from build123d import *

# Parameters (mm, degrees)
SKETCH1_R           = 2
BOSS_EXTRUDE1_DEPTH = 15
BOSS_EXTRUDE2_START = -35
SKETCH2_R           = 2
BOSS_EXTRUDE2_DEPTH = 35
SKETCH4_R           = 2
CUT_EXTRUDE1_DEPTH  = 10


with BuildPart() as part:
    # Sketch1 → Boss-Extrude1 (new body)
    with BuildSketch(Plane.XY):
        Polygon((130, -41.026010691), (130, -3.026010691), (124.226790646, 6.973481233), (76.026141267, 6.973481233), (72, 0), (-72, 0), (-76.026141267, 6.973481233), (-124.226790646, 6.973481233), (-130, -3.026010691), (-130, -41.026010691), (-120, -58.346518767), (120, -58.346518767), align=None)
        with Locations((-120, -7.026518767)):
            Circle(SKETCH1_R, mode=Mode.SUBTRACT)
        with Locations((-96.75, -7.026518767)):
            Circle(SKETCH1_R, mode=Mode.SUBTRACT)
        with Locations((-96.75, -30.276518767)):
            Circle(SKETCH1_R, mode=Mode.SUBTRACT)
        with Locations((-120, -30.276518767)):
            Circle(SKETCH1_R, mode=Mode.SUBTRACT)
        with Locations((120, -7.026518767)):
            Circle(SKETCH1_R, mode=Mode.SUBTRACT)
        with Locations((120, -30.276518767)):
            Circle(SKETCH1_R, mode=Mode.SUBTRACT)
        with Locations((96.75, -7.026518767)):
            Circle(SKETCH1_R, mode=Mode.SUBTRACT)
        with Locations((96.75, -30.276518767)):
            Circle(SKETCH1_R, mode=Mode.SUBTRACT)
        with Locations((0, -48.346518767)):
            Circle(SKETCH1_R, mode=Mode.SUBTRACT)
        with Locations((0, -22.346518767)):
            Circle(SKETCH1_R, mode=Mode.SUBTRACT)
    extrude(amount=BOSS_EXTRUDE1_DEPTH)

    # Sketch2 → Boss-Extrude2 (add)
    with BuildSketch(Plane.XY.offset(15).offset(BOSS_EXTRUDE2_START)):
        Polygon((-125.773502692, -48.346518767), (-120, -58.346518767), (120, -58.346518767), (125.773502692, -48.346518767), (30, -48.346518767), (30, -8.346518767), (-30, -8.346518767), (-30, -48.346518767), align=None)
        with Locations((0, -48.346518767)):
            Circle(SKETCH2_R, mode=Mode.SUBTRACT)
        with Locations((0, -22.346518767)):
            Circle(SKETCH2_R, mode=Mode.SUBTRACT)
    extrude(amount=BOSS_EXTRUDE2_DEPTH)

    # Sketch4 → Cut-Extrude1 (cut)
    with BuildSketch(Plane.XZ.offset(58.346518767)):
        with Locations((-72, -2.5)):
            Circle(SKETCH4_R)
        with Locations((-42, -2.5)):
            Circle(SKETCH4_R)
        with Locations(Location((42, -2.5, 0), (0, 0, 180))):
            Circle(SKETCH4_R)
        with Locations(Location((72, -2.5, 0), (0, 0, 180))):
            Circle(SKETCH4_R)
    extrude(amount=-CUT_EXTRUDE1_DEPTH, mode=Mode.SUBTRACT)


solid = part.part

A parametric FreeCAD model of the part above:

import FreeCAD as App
import Part
import Sketcher

V = App.Vector
Q = App.Units.Quantity

doc = App.newDocument("Part")
params = doc.addObject("Spreadsheet::Sheet", "Params")
for row, (alias, value) in enumerate([
    ("sketch1_diameter", "4 mm"),
    ("sketch1_width", "144 mm"),
    ("sketch1_width2", "240 mm"),
    ("sketch1_height", "38 mm"),
    ("sketch1_length", "20 mm"),
    ("pad1_length", "15 mm"),
    ("sketch2_diameter", "4 mm"),
    ("sketch2_width", "240 mm"),
    ("sketch2_width2", "60 mm"),
    ("sketch2_height", "40 mm"),
    ("pad2_length", "35 mm"),
    ("sketch3_diameter", "4 mm"),
    ("pocket1_length", "10 mm"),
], start=1):
    params.set(f"A{row}", alias)
    params.set(f"B{row}", "=" + value)
    params.setAlias(f"B{row}", alias)

body = doc.addObject("PartDesign::Body", "Body")

# Sketch on XY plane
sketch1 = body.newObject("Sketcher::SketchObject", "Sketch")
sketch1.AttachmentSupport = (doc.getObject("XY_Plane"), [""])
sketch1.MapMode = "FlatFace"
sketch1.addGeometry(Part.LineSegment(V(130, -41, 0), V(130, -3, 0)), False)
sketch1.addGeometry(Part.LineSegment(V(130, -3, 0), V(124.2, 7, 0)), False)
sketch1.addGeometry(Part.LineSegment(V(124.2, 7, 0), V(76, 7, 0)), False)
sketch1.addGeometry(Part.LineSegment(V(76, 7, 0), V(72, 0, 0)), False)
sketch1.addGeometry(Part.LineSegment(V(72, 0, 0), V(-72, 0, 0)), False)
sketch1.addGeometry(Part.LineSegment(V(-72, 0, 0), V(-76, 7, 0)), False)
sketch1.addGeometry(Part.LineSegment(V(-76, 7, 0), V(-124.2, 7, 0)), False)
sketch1.addGeometry(Part.LineSegment(V(-124.2, 7, 0), V(-130, -3, 0)), False)
sketch1.addGeometry(Part.LineSegment(V(-130, -3, 0), V(-130, -41, 0)), False)
sketch1.addGeometry(Part.LineSegment(V(-130, -41, 0), V(-120, -58.3, 0)), False)
sketch1.addGeometry(Part.LineSegment(V(-120, -58.3, 0), V(120, -58.3, 0)), False)
sketch1.addGeometry(Part.LineSegment(V(120, -58.3, 0), V(130, -41, 0)), False)
sketch1.addGeometry(Part.Circle(V(-120, -30.3, 0), V(0, 0, 1), 2), False)
sketch1.addGeometry(Part.Circle(V(-96.8, -30.3, 0), V(0, 0, 1), 2), False)
sketch1.addGeometry(Part.Circle(V(0, -48.3, 0), V(0, 0, 1), 2), False)
sketch1.addGeometry(Part.Circle(V(96.8, -30.3, 0), V(0, 0, 1), 2), False)
sketch1.addGeometry(Part.Circle(V(120, -30.3, 0), V(0, 0, 1), 2), False)
sketch1.addGeometry(Part.Circle(V(-120, -7, 0), V(0, 0, 1), 2), False)
sketch1.addGeometry(Part.Circle(V(-96.8, -7, 0), V(0, 0, 1), 2), False)
sketch1.addGeometry(Part.Circle(V(0, -22.3, 0), V(0, 0, 1), 2), False)
sketch1.addGeometry(Part.Circle(V(96.8, -7, 0), V(0, 0, 1), 2), False)
sketch1.addGeometry(Part.Circle(V(120, -7, 0), V(0, 0, 1), 2), False)
sketch1.addConstraint(Sketcher.Constraint("Coincident", 0, 2, 1, 1))
sketch1.addConstraint(Sketcher.Constraint("Coincident", 1, 2, 2, 1))
sketch1.addConstraint(Sketcher.Constraint("Coincident", 2, 2, 3, 1))
sketch1.addConstraint(Sketcher.Constraint("Coincident", 3, 2, 4, 1))
sketch1.addConstraint(Sketcher.Constraint("Coincident", 4, 2, 5, 1))
sketch1.addConstraint(Sketcher.Constraint("Coincident", 5, 2, 6, 1))
sketch1.addConstraint(Sketcher.Constraint("Coincident", 6, 2, 7, 1))
sketch1.addConstraint(Sketcher.Constraint("Coincident", 7, 2, 8, 1))
sketch1.addConstraint(Sketcher.Constraint("Coincident", 8, 2, 9, 1))
sketch1.addConstraint(Sketcher.Constraint("Coincident", 9, 2, 10, 1))
sketch1.addConstraint(Sketcher.Constraint("Coincident", 10, 2, 11, 1))
sketch1.addConstraint(Sketcher.Constraint("Coincident", 11, 2, 0, 1))
sketch1.addConstraint(Sketcher.Constraint("Vertical", 0))
sketch1.addConstraint(Sketcher.Constraint("Horizontal", 2))
sketch1.addConstraint(Sketcher.Constraint("Horizontal", 4))
sketch1.addConstraint(Sketcher.Constraint("Horizontal", 6))
sketch1.addConstraint(Sketcher.Constraint("Vertical", 8))
sketch1.addConstraint(Sketcher.Constraint("Horizontal", 10))
sketch1.addConstraint(Sketcher.Constraint("Equal", 12, 13))
sketch1.addConstraint(Sketcher.Constraint("Equal", 13, 14))
sketch1.addConstraint(Sketcher.Constraint("Equal", 14, 15))
sketch1.addConstraint(Sketcher.Constraint("Equal", 15, 16))
sketch1.addConstraint(Sketcher.Constraint("Equal", 16, 17))
sketch1.addConstraint(Sketcher.Constraint("Equal", 17, 18))
sketch1.addConstraint(Sketcher.Constraint("Equal", 18, 19))
sketch1.addConstraint(Sketcher.Constraint("Equal", 19, 20))
sketch1.addConstraint(Sketcher.Constraint("Equal", 20, 21))
sketch1.addConstraint(Sketcher.Constraint("Symmetric", 3, 2, 4, 2, -1, 1))
sketch1.addConstraint(Sketcher.Constraint("Symmetric", 13, 3, 15, 3, -2))
sketch1.addConstraint(Sketcher.Constraint("Symmetric", 12, 3, 16, 3, -2))
sketch1.addConstraint(Sketcher.Constraint("Symmetric", 18, 3, 20, 3, -2))
sketch1.addConstraint(Sketcher.Constraint("Symmetric", 17, 3, 21, 3, -2))
sketch1.addConstraint(Sketcher.Constraint("Symmetric", 2, 2, 5, 2, -2))
sketch1.addConstraint(Sketcher.Constraint("Symmetric", 0, 2, 7, 2, -2))
sketch1.addConstraint(Sketcher.Constraint("PointOnObject", 14, 3, -2))
sketch1.addConstraint(Sketcher.Constraint("PointOnObject", 19, 3, -2))
sketch1.addConstraint(Sketcher.Constraint("Parallel", 1, 5))
sketch1.addConstraint(Sketcher.Constraint("Parallel", 3, 7))
sketch1.addConstraint(Sketcher.Constraint("Parallel", 5, 9))
sketch1.addConstraint(Sketcher.Constraint("Parallel", 7, 11))
sketch1.addConstraint(Sketcher.Constraint("Horizontal", 12, 3, 13, 3))
sketch1.addConstraint(Sketcher.Constraint("Horizontal", 17, 3, 18, 3))
sketch1.addConstraint(Sketcher.Constraint("Horizontal", 8, 2, 11, 2))
sketch1.addConstraint(Sketcher.Constraint("Vertical", 12, 3, 17, 3))
sketch1.addConstraint(Sketcher.Constraint("Vertical", 13, 3, 18, 3))
sketch1.addConstraint(Sketcher.Constraint("Vertical", 17, 3, 9, 2))
sketch1.addConstraint(Sketcher.Constraint("Diameter", 12, 4.0))
sketch1.addConstraint(Sketcher.Constraint("DistanceX", 4, 2, 4, 1, 144.0))
sketch1.addConstraint(Sketcher.Constraint("DistanceX", 10, 1, 10, 2, 240.0))
sketch1.addConstraint(Sketcher.Constraint("DistanceY", 0, 1, 0, 2, 38.0))
sketch1.addConstraint(Sketcher.Constraint("Angle", 1, Q("120 deg")))
sketch1.addConstraint(Sketcher.Constraint("Distance", 9, 20.0))
sketch1.addConstraint(Sketcher.Constraint("DistanceY", 14, 3, 19, 3, 26.0))
sketch1.addConstraint(Sketcher.Constraint("DistanceY", 21, 3, 1, 2, 14.0))
sketch1.addConstraint(Sketcher.Constraint("DistanceX", 13, 3, 15, 3, 193.5))
sketch1.addConstraint(Sketcher.Constraint("DistanceY", 14, 3, 13, 3, 18.07))
sketch1.addConstraint(Sketcher.Constraint("DistanceY", 12, 3, 17, 3, 23.25))
sketch1.addConstraint(Sketcher.Constraint("DistanceY", 9, 2, 12, 3, 28.07))
sketch1.addConstraint(Sketcher.Constraint("DistanceX", 2, 2, 2, 1, 48.200649))
sketch1.setExpression("Constraints[46]", "Params.sketch1_diameter")
sketch1.setExpression("Constraints[47]", "Params.sketch1_width")
sketch1.setExpression("Constraints[48]", "Params.sketch1_width2")
sketch1.setExpression("Constraints[49]", "Params.sketch1_height")
sketch1.setExpression("Constraints[51]", "Params.sketch1_length")
pad1 = body.newObject("PartDesign::Pad", "Pad")
pad1.Profile = sketch1
pad1.setExpression("Length", "Params.pad1_length")

# Sketch on XY plane
sketch2 = body.newObject("Sketcher::SketchObject", "Sketch001")
sketch2.AttachmentSupport = (doc.getObject("XY_Plane"), [""])
sketch2.MapMode = "FlatFace"
sketch2.AttachmentOffset = App.Placement(V(0, 0, -20), App.Rotation())
sketch2.addGeometry(Part.LineSegment(V(-125.8, -48.3, 0), V(-120, -58.3, 0)), False)
sketch2.addGeometry(Part.LineSegment(V(-120, -58.3, 0), V(120, -58.3, 0)), False)
sketch2.addGeometry(Part.LineSegment(V(120, -58.3, 0), V(125.8, -48.3, 0)), False)
sketch2.addGeometry(Part.LineSegment(V(125.8, -48.3, 0), V(30, -48.3, 0)), False)
sketch2.addGeometry(Part.LineSegment(V(30, -48.3, 0), V(30, -8.3, 0)), False)
sketch2.addGeometry(Part.LineSegment(V(30, -8.3, 0), V(-30, -8.3, 0)), False)
sketch2.addGeometry(Part.LineSegment(V(-30, -8.3, 0), V(-30, -48.3, 0)), False)
sketch2.addGeometry(Part.LineSegment(V(-30, -48.3, 0), V(-125.8, -48.3, 0)), False)
sketch2.addGeometry(Part.Circle(V(0, -48.3, 0), V(0, 0, 1), 2), False)
sketch2.addGeometry(Part.Circle(V(0, -22.3, 0), V(0, 0, 1), 2), False)
sketch2.addConstraint(Sketcher.Constraint("Coincident", 0, 2, 1, 1))
sketch2.addConstraint(Sketcher.Constraint("Coincident", 1, 2, 2, 1))
sketch2.addConstraint(Sketcher.Constraint("Coincident", 2, 2, 3, 1))
sketch2.addConstraint(Sketcher.Constraint("Coincident", 3, 2, 4, 1))
sketch2.addConstraint(Sketcher.Constraint("Coincident", 4, 2, 5, 1))
sketch2.addConstraint(Sketcher.Constraint("Coincident", 5, 2, 6, 1))
sketch2.addConstraint(Sketcher.Constraint("Coincident", 6, 2, 7, 1))
sketch2.addConstraint(Sketcher.Constraint("Coincident", 7, 2, 0, 1))
sketch2.addConstraint(Sketcher.Constraint("Horizontal", 1))
sketch2.addConstraint(Sketcher.Constraint("Horizontal", 3))
sketch2.addConstraint(Sketcher.Constraint("Vertical", 4))
sketch2.addConstraint(Sketcher.Constraint("Horizontal", 5))
sketch2.addConstraint(Sketcher.Constraint("Vertical", 6))
sketch2.addConstraint(Sketcher.Constraint("Horizontal", 7))
sketch2.addConstraint(Sketcher.Constraint("Equal", 8, 9))
sketch2.addConstraint(Sketcher.Constraint("Symmetric", 3, 2, 6, 2, -2))
sketch2.addConstraint(Sketcher.Constraint("PointOnObject", 8, 3, -2))
sketch2.addConstraint(Sketcher.Constraint("PointOnObject", 9, 3, -2))
sketch2.addConstraint(Sketcher.Constraint("Horizontal", 8, 3, 2, 2))
sketch2.addConstraint(Sketcher.Constraint("Equal", 3, 7))
sketch2.addConstraint(Sketcher.Constraint("Equal", 0, 2))
sketch2.addConstraint(Sketcher.Constraint("Diameter", 8, 4.0))
sketch2.addConstraint(Sketcher.Constraint("DistanceX", 1, 1, 1, 2, 240.0))
sketch2.addConstraint(Sketcher.Constraint("DistanceX", 5, 2, 5, 1, 60.0))
sketch2.addConstraint(Sketcher.Constraint("DistanceY", 4, 1, 4, 2, 40.0))
sketch2.addConstraint(Sketcher.Constraint("Angle", 0, Q("-60 deg")))
sketch2.addConstraint(Sketcher.Constraint("DistanceY", 8, 3, 9, 3, 26.0))
sketch2.addConstraint(Sketcher.Constraint("DistanceY", 0, 2, 8, 3, 10.0))
sketch2.addConstraint(Sketcher.Constraint("DistanceY", 8, 3, -1, 1, 48.346519))
sketch2.setExpression("Constraints[21]", "Params.sketch2_diameter")
sketch2.setExpression("Constraints[22]", "Params.sketch2_width")
sketch2.setExpression("Constraints[23]", "Params.sketch2_width2")
sketch2.setExpression("Constraints[24]", "Params.sketch2_height")
pad2 = body.newObject("PartDesign::Pad", "Pad001")
pad2.Profile = sketch2
pad2.setExpression("Length", "Params.pad2_length")

# Sketch on XZ plane
sketch3 = body.newObject("Sketcher::SketchObject", "Sketch002")
sketch3.AttachmentSupport = (doc.getObject("XZ_Plane"), [""])
sketch3.MapMode = "FlatFace"
sketch3.AttachmentOffset = App.Placement(V(0, 0, 58.346519), App.Rotation())
sketch3.addGeometry(Part.Circle(V(-72, -2.5, 0), V(0, 0, 1), 2), False)
sketch3.addGeometry(Part.Circle(V(-42, -2.5, 0), V(0, 0, 1), 2), False)
sketch3.addGeometry(Part.Circle(V(42, -2.5, 0), V(0, 0, 1), 2), False)
sketch3.addGeometry(Part.Circle(V(72, -2.5, 0), V(0, 0, 1), 2), False)
sketch3.addConstraint(Sketcher.Constraint("Equal", 0, 1))
sketch3.addConstraint(Sketcher.Constraint("Equal", 1, 2))
sketch3.addConstraint(Sketcher.Constraint("Equal", 2, 3))
sketch3.addConstraint(Sketcher.Constraint("Symmetric", 1, 3, 2, 3, -2))
sketch3.addConstraint(Sketcher.Constraint("Symmetric", 0, 3, 3, 3, -2))
sketch3.addConstraint(Sketcher.Constraint("Horizontal", 0, 3, 1, 3))
sketch3.addConstraint(Sketcher.Constraint("Diameter", 0, 4.0))
sketch3.addConstraint(Sketcher.Constraint("DistanceX", 0, 3, -1, 1, 72.0))
sketch3.addConstraint(Sketcher.Constraint("DistanceX", 1, 3, -1, 1, 42.0))
sketch3.addConstraint(Sketcher.Constraint("DistanceY", 0, 3, -1, 1, 2.5))
sketch3.setExpression("Constraints[6]", "Params.sketch3_diameter")
pocket1 = body.newObject("PartDesign::Pocket", "Pocket")
pocket1.Profile = sketch3
pocket1.setExpression("Length", "Params.pocket1_length")

doc.recompute()
